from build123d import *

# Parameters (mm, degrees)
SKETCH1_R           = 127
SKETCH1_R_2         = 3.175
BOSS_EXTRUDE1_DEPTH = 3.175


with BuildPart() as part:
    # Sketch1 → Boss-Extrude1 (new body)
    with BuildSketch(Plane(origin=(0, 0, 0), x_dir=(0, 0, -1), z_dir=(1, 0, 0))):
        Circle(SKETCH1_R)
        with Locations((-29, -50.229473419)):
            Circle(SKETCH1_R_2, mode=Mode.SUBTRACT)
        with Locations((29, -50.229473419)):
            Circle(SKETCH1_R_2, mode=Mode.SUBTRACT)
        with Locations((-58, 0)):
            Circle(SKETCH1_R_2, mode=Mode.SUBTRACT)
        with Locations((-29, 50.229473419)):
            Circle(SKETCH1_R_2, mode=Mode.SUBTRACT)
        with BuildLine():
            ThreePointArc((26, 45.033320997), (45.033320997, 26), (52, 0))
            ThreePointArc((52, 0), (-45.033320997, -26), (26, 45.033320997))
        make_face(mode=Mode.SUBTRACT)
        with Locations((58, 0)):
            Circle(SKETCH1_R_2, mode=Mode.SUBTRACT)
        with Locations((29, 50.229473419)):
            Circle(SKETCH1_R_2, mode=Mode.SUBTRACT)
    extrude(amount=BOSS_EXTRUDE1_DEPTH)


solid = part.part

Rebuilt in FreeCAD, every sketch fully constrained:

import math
import FreeCAD as App
import Part
import Sketcher

V = App.Vector
Q = App.Units.Quantity

doc = App.newDocument("Part")
body = doc.addObject("PartDesign::Body", "Body")

sketch1 = doc.addObject("Sketcher::SketchObject", "Sketch")
body.addObject(sketch1)
sketch1.AttachmentSupport = (doc.YZ_Plane, [""])
sketch1.MapMode = "FlatFace"
sketch1.addGeometry(Part.Circle(V(0, 0, 0), V(0, 0, 1), 127), False)
sketch1.addGeometry(Part.Circle(V(-50.2, 29, 0), V(0, 0, 1), 3.2), False)
sketch1.addGeometry(Part.Circle(V(-50.2, -29, 0), V(0, 0, 1), 3.2), False)
sketch1.addGeometry(Part.Circle(V(0, 58, 0), V(0, 0, 1), 3.2), False)
sketch1.addGeometry(Part.ArcOfCircle(Part.Circle(V(0, 0, 0), V(0, 0, 1), 52), math.radians(-30), math.radians(270)), False)
sketch1.addGeometry(Part.ArcOfCircle(Part.Circle(V(0, 0, 0), V(0, 0, 1), 52), math.radians(-90), math.radians(-30)), False)
sketch1.addGeometry(Part.Circle(V(50.2, 29, 0), V(0, 0, 1), 3.2), False)
sketch1.addGeometry(Part.Circle(V(0, -58, 0), V(0, 0, 1), 3.2), False)
sketch1.addGeometry(Part.Circle(V(50.2, -29, 0), V(0, 0, 1), 3.2), False)
sketch1.addConstraint(Sketcher.Constraint("Tangent", 4, 1, 5, 2))
sketch1.addConstraint(Sketcher.Constraint("Coincident", 5, 1, 4, 2))
sketch1.addConstraint(Sketcher.Constraint("Coincident", 0, 3, -1, 1))
sketch1.addConstraint(Sketcher.Constraint("Coincident", 4, 3, -1, 1))
sketch1.addConstraint(Sketcher.Constraint("Equal", 1, 2))
sketch1.addConstraint(Sketcher.Constraint("Equal", 2, 3))
sketch1.addConstraint(Sketcher.Constraint("Equal", 3, 6))
sketch1.addConstraint(Sketcher.Constraint("Equal", 6, 7))
sketch1.addConstraint(Sketcher.Constraint("Equal", 7, 8))
sketch1.addConstraint(Sketcher.Constraint("Symmetric", 2, 3, 6, 3, -1, 1))
sketch1.addConstraint(Sketcher.Constraint("Symmetric", 3, 3, 7, 3, -1, 1))
sketch1.addConstraint(Sketcher.Constraint("Symmetric", 1, 3, 8, 3, -1, 1))
sketch1.addConstraint(Sketcher.Constraint("Symmetric", 1, 3, 6, 3, -2))
sketch1.addConstraint(Sketcher.Constraint("PointOnObject", 3, 3, -2))
sketch1.addConstraint(Sketcher.Constraint("PointOnObject", 5, 1, -2))
sketch1.addConstraint(Sketcher.Constraint("Diameter", 0, Q("10 in")))
sketch1.addConstraint(Sketcher.Constraint("Diameter", 1, Q("0.25 in")))
sketch1.addConstraint(Sketcher.Constraint("Radius", 4, 52.0))
sketch1.addConstraint(Sketcher.Constraint("DistanceY", -1, 1, 1, 3, 29.0))
sketch1.addConstraint(Sketcher.Constraint("DistanceY", -1, 1, 3, 3, 58.0))
sketch1.addConstraint(Sketcher.Constraint("DistanceY", 4, 1, -1, 1, 26.0))
sketch1.addConstraint(Sketcher.Constraint("DistanceX", 1, 3, -1, 1, 50.229473))
pad1 = doc.addObject("PartDesign::Pad", "Pad")
body.addObject(pad1)
pad1.Profile = sketch1
pad1.Length = Q("0.125 in")

doc.recompute()
